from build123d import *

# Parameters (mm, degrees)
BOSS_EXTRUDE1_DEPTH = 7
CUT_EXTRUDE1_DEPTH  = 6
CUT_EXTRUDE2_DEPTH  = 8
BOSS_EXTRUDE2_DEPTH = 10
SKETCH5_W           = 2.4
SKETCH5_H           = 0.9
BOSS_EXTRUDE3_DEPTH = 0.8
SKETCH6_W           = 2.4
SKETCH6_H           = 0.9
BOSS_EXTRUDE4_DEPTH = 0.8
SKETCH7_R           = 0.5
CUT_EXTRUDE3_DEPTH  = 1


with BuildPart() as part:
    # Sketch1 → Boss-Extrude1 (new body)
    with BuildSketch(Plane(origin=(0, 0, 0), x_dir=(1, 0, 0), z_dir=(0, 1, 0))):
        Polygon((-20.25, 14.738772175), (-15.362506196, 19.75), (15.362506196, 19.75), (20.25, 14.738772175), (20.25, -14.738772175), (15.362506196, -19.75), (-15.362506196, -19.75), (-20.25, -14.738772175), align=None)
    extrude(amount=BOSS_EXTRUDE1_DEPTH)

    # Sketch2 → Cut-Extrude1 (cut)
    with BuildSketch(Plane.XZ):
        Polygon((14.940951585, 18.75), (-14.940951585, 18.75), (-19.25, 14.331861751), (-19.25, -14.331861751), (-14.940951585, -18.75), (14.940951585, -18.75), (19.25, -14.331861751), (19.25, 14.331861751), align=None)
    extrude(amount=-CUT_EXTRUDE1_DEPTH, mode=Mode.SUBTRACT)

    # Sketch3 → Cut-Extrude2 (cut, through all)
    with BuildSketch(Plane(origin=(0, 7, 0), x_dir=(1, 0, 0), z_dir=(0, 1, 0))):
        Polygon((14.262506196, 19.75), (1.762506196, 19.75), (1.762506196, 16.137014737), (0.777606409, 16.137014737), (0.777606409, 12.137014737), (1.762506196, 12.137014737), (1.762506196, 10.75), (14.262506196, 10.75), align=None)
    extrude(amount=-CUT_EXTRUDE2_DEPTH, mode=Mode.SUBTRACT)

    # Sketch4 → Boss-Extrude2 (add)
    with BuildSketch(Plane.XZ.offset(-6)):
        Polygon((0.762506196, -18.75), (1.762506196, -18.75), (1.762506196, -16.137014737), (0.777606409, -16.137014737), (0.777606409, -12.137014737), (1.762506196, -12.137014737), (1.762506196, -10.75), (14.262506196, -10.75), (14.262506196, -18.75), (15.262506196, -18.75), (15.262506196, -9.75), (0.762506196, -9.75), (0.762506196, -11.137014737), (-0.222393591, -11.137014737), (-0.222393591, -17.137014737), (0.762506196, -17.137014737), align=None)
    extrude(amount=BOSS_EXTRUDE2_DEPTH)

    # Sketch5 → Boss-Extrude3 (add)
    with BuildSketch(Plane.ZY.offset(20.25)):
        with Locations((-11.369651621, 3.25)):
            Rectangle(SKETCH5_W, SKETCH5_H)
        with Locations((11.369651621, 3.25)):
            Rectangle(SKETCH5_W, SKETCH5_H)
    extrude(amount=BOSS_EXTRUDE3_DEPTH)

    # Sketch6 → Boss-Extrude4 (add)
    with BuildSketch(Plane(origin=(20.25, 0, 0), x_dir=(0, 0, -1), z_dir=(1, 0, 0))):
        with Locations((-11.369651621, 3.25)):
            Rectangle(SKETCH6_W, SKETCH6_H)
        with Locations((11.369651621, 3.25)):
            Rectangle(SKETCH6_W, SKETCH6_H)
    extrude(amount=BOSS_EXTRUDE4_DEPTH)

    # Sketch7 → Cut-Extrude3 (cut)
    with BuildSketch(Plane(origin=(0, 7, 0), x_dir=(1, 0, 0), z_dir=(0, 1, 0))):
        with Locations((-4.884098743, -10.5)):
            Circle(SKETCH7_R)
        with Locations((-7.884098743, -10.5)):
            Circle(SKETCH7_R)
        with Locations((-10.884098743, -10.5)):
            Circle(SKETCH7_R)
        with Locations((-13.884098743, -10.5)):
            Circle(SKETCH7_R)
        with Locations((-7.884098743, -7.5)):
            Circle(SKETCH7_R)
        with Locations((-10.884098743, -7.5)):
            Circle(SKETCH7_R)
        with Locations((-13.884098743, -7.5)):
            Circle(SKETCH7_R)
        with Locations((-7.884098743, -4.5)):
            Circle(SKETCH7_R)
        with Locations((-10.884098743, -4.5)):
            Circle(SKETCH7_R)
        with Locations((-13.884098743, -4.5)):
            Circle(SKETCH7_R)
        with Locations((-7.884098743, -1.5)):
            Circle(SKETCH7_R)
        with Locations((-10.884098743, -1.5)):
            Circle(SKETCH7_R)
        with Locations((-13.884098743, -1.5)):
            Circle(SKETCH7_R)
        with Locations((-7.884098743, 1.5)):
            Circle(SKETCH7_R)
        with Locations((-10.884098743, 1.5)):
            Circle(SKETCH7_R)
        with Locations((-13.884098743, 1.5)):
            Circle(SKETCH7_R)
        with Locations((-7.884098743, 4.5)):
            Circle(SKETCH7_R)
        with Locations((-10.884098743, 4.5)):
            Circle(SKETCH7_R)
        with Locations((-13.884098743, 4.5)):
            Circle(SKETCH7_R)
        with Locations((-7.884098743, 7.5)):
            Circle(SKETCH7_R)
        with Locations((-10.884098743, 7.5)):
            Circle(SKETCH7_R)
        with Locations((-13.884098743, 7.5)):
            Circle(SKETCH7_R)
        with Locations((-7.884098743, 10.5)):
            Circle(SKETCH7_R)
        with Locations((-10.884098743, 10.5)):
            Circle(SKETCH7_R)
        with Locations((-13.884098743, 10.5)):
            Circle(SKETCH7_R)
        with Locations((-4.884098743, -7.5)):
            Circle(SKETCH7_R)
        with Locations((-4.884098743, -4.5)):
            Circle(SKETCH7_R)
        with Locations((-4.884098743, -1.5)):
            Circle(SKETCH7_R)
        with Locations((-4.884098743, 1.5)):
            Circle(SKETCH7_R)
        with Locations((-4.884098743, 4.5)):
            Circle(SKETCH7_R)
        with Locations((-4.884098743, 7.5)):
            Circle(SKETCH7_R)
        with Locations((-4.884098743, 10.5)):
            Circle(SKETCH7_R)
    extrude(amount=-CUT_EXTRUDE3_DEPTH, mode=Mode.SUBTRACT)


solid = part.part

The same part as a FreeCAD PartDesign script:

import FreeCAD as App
import Part
import Sketcher

V = App.Vector
Q = App.Units.Quantity

doc = App.newDocument("Part")
params = doc.addObject("Spreadsheet::Sheet", "Params")
for row, (alias, value) in enumerate([
    ("sketch1_length", "7 mm"),
    ("pad1_length", "7 mm"),
    ("pocket1_length", "6 mm"),
    ("sketch3_height", "4 mm"),
    ("sketch3_height2", "9 mm"),
    ("sketch3_width", "12.5 mm"),
    ("sketch4_width", "1 mm"),
    ("sketch4_height", "4 mm"),
    ("sketch4_height2", "8 mm"),
    ("sketch4_height3", "9 mm"),
    ("sketch4_height4", "6 mm"),
    ("pad2_length", "10 mm"),
    ("sketch5_width", "0.9 mm"),
    ("sketch5_height", "2.4 mm"),
    ("pad3_length", "0.8 mm"),
    ("sketch6_width", "0.9 mm"),
    ("sketch6_height", "2.4 mm"),
    ("pad4_length", "0.8 mm"),
    ("sketch7_diameter", "1 mm"),
    ("pocket3_length", "1 mm"),
], start=1):
    params.set(f"A{row}", alias)
    params.set(f"B{row}", "=" + value)
    params.setAlias(f"B{row}", alias)

body = doc.addObject("PartDesign::Body", "Body")

# Sketch on XZ plane
sketch1 = doc.addObject("Sketcher::SketchObject", "Sketch")
body.addObject(sketch1)
sketch1.AttachmentSupport = (doc.XZ_Plane, [""])
sketch1.MapMode = "FlatFace"
sketch1.addGeometry(Part.LineSegment(V(-15.362506, -19.75, 0), V(-20.25, -14.738772, 0)), False)
sketch1.addGeometry(Part.LineSegment(V(-20.25, -14.738772, 0), V(-20.25, 14.738772, 0)), False)
sketch1.addGeometry(Part.LineSegment(V(-20.25, 14.738772, 0), V(-15.362506, 19.75, 0)), False)
sketch1.addGeometry(Part.LineSegment(V(-15.362506, 19.75, 0), V(15.362506, 19.75, 0)), False)
sketch1.addGeometry(Part.LineSegment(V(15.362506, 19.75, 0), V(20.25, 14.738772, 0)), False)
sketch1.addGeometry(Part.LineSegment(V(20.25, 14.738772, 0), V(20.25, -14.738772, 0)), False)
sketch1.addGeometry(Part.LineSegment(V(20.25, -14.738772, 0), V(15.362506, -19.75, 0)), False)
sketch1.addGeometry(Part.LineSegment(V(15.362506, -19.75, 0), V(-15.362506, -19.75, 0)), False)
sketch1.addConstraint(Sketcher.Constraint("Coincident", 0, 2, 1, 1))
sketch1.addConstraint(Sketcher.Constraint("Coincident", 1, 2, 2, 1))
sketch1.addConstraint(Sketcher.Constraint("Coincident", 2, 2, 3, 1))
sketch1.addConstraint(Sketcher.Constraint("Coincident", 3, 2, 4, 1))
sketch1.addConstraint(Sketcher.Constraint("Coincident", 4, 2, 5, 1))
sketch1.addConstraint(Sketcher.Constraint("Coincident", 5, 2, 6, 1))
sketch1.addConstraint(Sketcher.Constraint("Coincident", 6, 2, 7, 1))
sketch1.addConstraint(Sketcher.Constraint("Coincident", 7, 2, 0, 1))
sketch1.addConstraint(Sketcher.Constraint("Vertical", 1))
sketch1.addConstraint(Sketcher.Constraint("Horizontal", 3))
sketch1.addConstraint(Sketcher.Constraint("Vertical", 5))
sketch1.addConstraint(Sketcher.Constraint("Horizontal", 7))
sketch1.addConstraint(Sketcher.Constraint("Symmetric", 0, 2, 4, 2, -1, 1))
sketch1.addConstraint(Sketcher.Constraint("Symmetric", 2, 2, 6, 2, -1, 1))
sketch1.addConstraint(Sketcher.Constraint("Parallel", 0, 4))
sketch1.addConstraint(Sketcher.Constraint("Parallel", 2, 6))
sketch1.addConstraint(Sketcher.Constraint("Horizontal", 1, 2, 4, 2))
sketch1.addConstraint(Sketcher.Constraint("Vertical", 3, 2, 6, 2))
sketch1.addConstraint(Sketcher.Constraint("Distance", 0, Q("7 mm")))
sketch1.addConstraint(Sketcher.Constraint("DistanceX", 1, 2, 4, 2, Q("40.5 mm")))
sketch1.addConstraint(Sketcher.Constraint("DistanceY", 6, 2, 3, 2, Q("39.5 mm")))
sketch1.addConstraint(Sketcher.Constraint("DistanceX", 3, 1, 3, 2, Q("30.725012 mm")))
sketch1.setExpression("Constraints[18]", "Params.sketch1_length")
pad1 = doc.addObject("PartDesign::Pad", "Pad")
body.addObject(pad1)
pad1.Profile = sketch1
pad1.setExpression("Length", "Params.pad1_length")
pad1.Reversed = True

# Sketch on XZ plane
sketch2 = doc.addObject("Sketcher::SketchObject", "Sketch001")
body.addObject(sketch2)
sketch2.AttachmentSupport = (doc.XZ_Plane, [""])
sketch2.MapMode = "FlatFace"
sketch2.addGeometry(Part.LineSegment(V(14.940952, 18.75, 0), V(-14.940952, 18.75, 0)), False)
sketch2.addGeometry(Part.LineSegment(V(-14.940952, 18.75, 0), V(-19.25, 14.331862, 0)), False)
sketch2.addGeometry(Part.LineSegment(V(-19.25, 14.331862, 0), V(-19.25, -14.331862, 0)), False)
sketch2.addGeometry(Part.LineSegment(V(-19.25, -14.331862, 0), V(-14.940952, -18.75, 0)), False)
sketch2.addGeometry(Part.LineSegment(V(-14.940952, -18.75, 0), V(14.940952, -18.75, 0)), False)
sketch2.addGeometry(Part.LineSegment(V(14.940952, -18.75, 0), V(19.25, -14.331862, 0)), False)
sketch2.addGeometry(Part.LineSegment(V(19.25, -14.331862, 0), V(19.25, 14.331862, 0)), False)
sketch2.addGeometry(Part.LineSegment(V(19.25, 14.331862, 0), V(14.940952, 18.75, 0)), False)
sketch2.addConstraint(Sketcher.Constraint("Coincident", 0, 2, 1, 1))
sketch2.addConstraint(Sketcher.Constraint("Coincident", 1, 2, 2, 1))
sketch2.addConstraint(Sketcher.Constraint("Coincident", 2, 2, 3, 1))
sketch2.addConstraint(Sketcher.Constraint("Coincident", 3, 2, 4, 1))
sketch2.addConstraint(Sketcher.Constraint("Coincident", 4, 2, 5, 1))
sketch2.addConstraint(Sketcher.Constraint("Coincident", 5, 2, 6, 1))
sketch2.addConstraint(Sketcher.Constraint("Coincident", 6, 2, 7, 1))
sketch2.addConstraint(Sketcher.Constraint("Coincident", 7, 2, 0, 1))
sketch2.addConstraint(Sketcher.Constraint("Horizontal", 0))
sketch2.addConstraint(Sketcher.Constraint("Vertical", 2))
sketch2.addConstraint(Sketcher.Constraint("Horizontal", 4))
sketch2.addConstraint(Sketcher.Constraint("Vertical", 6))
sketch2.addConstraint(Sketcher.Constraint("Symmetric", 0, 2, 4, 2, -1, 1))
sketch2.addConstraint(Sketcher.Constraint("Symmetric", 1, 2, 5, 2, -1, 1))
sketch2.addConstraint(Sketcher.Constraint("Parallel", 3, 7))
sketch2.addConstraint(Sketcher.Constraint("Horizontal", 2, 2, 5, 2))
sketch2.addConstraint(Sketcher.Constraint("Horizontal", 1, 2, 6, 2))
sketch2.addConstraint(Sketcher.Constraint("Vertical", 0, 2, 3, 2))
sketch2.addConstraint(Sketcher.Constraint("DistanceY", 3, 2, 0, 2, Q("37.5 mm")))
sketch2.addConstraint(Sketcher.Constraint("DistanceX", 2, 2, 5, 2, Q("38.5 mm")))
sketch2.addConstraint(Sketcher.Constraint("DistanceX", 0, 2, 0, 1, Q("29.881903 mm")))
sketch2.addConstraint(Sketcher.Constraint("DistanceY", 2, 2, 2, 1, Q("28.663724 mm")))
pocket1 = doc.addObject("PartDesign::Pocket", "Pocket")
body.addObject(pocket1)
pocket1.Profile = sketch2
pocket1.setExpression("Length", "Params.pocket1_length")

# Sketch on XZ plane
sketch3 = doc.addObject("Sketcher::SketchObject", "Sketch002")
body.addObject(sketch3)
sketch3.AttachmentSupport = (doc.XZ_Plane, [""])
sketch3.MapMode = "FlatFace"
sketch3.AttachmentOffset = App.Placement(V(0, 0, -7), App.Rotation())
sketch3.addGeometry(Part.LineSegment(V(14.262506, -19.75, 0), V(1.762506, -19.75, 0)), False)
sketch3.addGeometry(Part.LineSegment(V(1.762506, -19.75, 0), V(1.762506, -16.137015, 0)), False)
sketch3.addGeometry(Part.LineSegment(V(1.762506, -16.137015, 0), V(0.777606, -16.137015, 0)), False)
sketch3.addGeometry(Part.LineSegment(V(0.777606, -16.137015, 0), V(0.777606, -12.137015, 0)), False)
sketch3.addGeometry(Part.LineSegment(V(0.777606, -12.137015, 0), V(1.762506, -12.137015, 0)), False)
sketch3.addGeometry(Part.LineSegment(V(1.762506, -12.137015, 0), V(1.762506, -10.75, 0)), False)
sketch3.addGeometry(Part.LineSegment(V(1.762506, -10.75, 0), V(14.262506, -10.75, 0)), False)
sketch3.addGeometry(Part.LineSegment(V(14.262506, -10.75, 0), V(14.262506, -19.75, 0)), False)
sketch3.addConstraint(Sketcher.Constraint("Coincident", 0, 2, 1, 1))
sketch3.addConstraint(Sketcher.Constraint("Coincident", 1, 2, 2, 1))
sketch3.addConstraint(Sketcher.Constraint("Coincident", 2, 2, 3, 1))
sketch3.addConstraint(Sketcher.Constraint("Coincident", 3, 2, 4, 1))
sketch3.addConstraint(Sketcher.Constraint("Coincident", 4, 2, 5, 1))
sketch3.addConstraint(Sketcher.Constraint("Coincident", 5, 2, 6, 1))
sketch3.addConstraint(Sketcher.Constraint("Coincident", 6, 2, 7, 1))
sketch3.addConstraint(Sketcher.Constraint("Coincident", 7, 2, 0, 1))
sketch3.addConstraint(Sketcher.Constraint("Horizontal", 0))
sketch3.addConstraint(Sketcher.Constraint("Vertical", 1))
sketch3.addConstraint(Sketcher.Constraint("Horizontal", 2))
sketch3.addConstraint(Sketcher.Constraint("Vertical", 3))
sketch3.addConstraint(Sketcher.Constraint("Horizontal", 4))
sketch3.addConstraint(Sketcher.Constraint("Vertical", 5))
sketch3.addConstraint(Sketcher.Constraint("Horizontal", 6))
sketch3.addConstraint(Sketcher.Constraint("Vertical", 7))
sketch3.addConstraint(Sketcher.Constraint("Vertical", 1, 2, 4, 2))
sketch3.addConstraint(Sketcher.Constraint("DistanceY", 3, 1, 3, 2, Q("4 mm")))
sketch3.addConstraint(Sketcher.Constraint("DistanceY", 7, 2, 7, 1, Q("9 mm")))
sketch3.addConstraint(Sketcher.Constraint("DistanceX", 0, 2, 0, 1, Q("12.5 mm")))
sketch3.addConstraint(Sketcher.Constraint("DistanceY", 0, 2, -1, 1, Q("19.75 mm")))
sketch3.addConstraint(Sketcher.Constraint("DistanceX", 2, 2, 2, 1, Q("0.9849 mm")))
sketch3.addConstraint(Sketcher.Constraint("DistanceY", 1, 1, 1, 2, Q("3.612985 mm")))
sketch3.addConstraint(Sketcher.Constraint("DistanceX", -1, 1, 0, 2, Q("1.762506 mm")))
sketch3.setExpression("Constraints[17]", "Params.sketch3_height")
sketch3.setExpression("Constraints[18]", "Params.sketch3_height2")
sketch3.setExpression("Constraints[19]", "Params.sketch3_width")
pocket2 = doc.addObject("PartDesign::Pocket", "Pocket001")
body.addObject(pocket2)
pocket2.Profile = sketch3
pocket2.Type = "ThroughAll"
pocket2.Reversed = True

# Sketch on XZ plane
sketch4 = doc.addObject("Sketcher::SketchObject", "Sketch003")
body.addObject(sketch4)
sketch4.AttachmentSupport = (doc.XZ_Plane, [""])
sketch4.MapMode = "FlatFace"
sketch4.AttachmentOffset = App.Placement(V(0, 0, -6), App.Rotation())
sketch4.addGeometry(Part.LineSegment(V(0.762506, -18.75, 0), V(1.762506, -18.75, 0)), False)
sketch4.addGeometry(Part.LineSegment(V(1.762506, -18.75, 0), V(1.762506, -16.137015, 0)), False)
sketch4.addGeometry(Part.LineSegment(V(1.762506, -16.137015, 0), V(0.777606, -16.137015, 0)), False)
sketch4.addGeometry(Part.LineSegment(V(0.777606, -16.137015, 0), V(0.777606, -12.137015, 0)), False)
sketch4.addGeometry(Part.LineSegment(V(0.777606, -12.137015, 0), V(1.762506, -12.137015, 0)), False)
sketch4.addGeometry(Part.LineSegment(V(1.762506, -12.137015, 0), V(1.762506, -10.75, 0)), False)
sketch4.addGeometry(Part.LineSegment(V(1.762506, -10.75, 0), V(14.262506, -10.75, 0)), False)
sketch4.addGeometry(Part.LineSegment(V(14.262506, -10.75, 0), V(14.262506, -18.75, 0)), False)
sketch4.addGeometry(Part.LineSegment(V(14.262506, -18.75, 0), V(15.262506, -18.75, 0)), False)
sketch4.addGeometry(Part.LineSegment(V(15.262506, -18.75, 0), V(15.262506, -9.75, 0)), False)
sketch4.addGeometry(Part.LineSegment(V(15.262506, -9.75, 0), V(0.762506, -9.75, 0)), False)
sketch4.addGeometry(Part.LineSegment(V(0.762506, -9.75, 0), V(0.762506, -11.137015, 0)), False)
sketch4.addGeometry(Part.LineSegment(V(0.762506, -11.137015, 0), V(-0.222394, -11.137015, 0)), False)
sketch4.addGeometry(Part.LineSegment(V(-0.222394, -11.137015, 0), V(-0.222394, -17.137015, 0)), False)
sketch4.addGeometry(Part.LineSegment(V(-0.222394, -17.137015, 0), V(0.762506, -17.137015, 0)), False)
sketch4.addGeometry(Part.LineSegment(V(0.762506, -17.137015, 0), V(0.762506, -18.75, 0)), False)
sketch4.addConstraint(Sketcher.Constraint("Coincident", 0, 2, 1, 1))
sketch4.addConstraint(Sketcher.Constraint("Coincident", 1, 2, 2, 1))
sketch4.addConstraint(Sketcher.Constraint("Coincident", 2, 2, 3, 1))
sketch4.addConstraint(Sketcher.Constraint("Coincident", 3, 2, 4, 1))
sketch4.addConstraint(Sketcher.Constraint("Coincident", 4, 2, 5, 1))
sketch4.addConstraint(Sketcher.Constraint("Coincident", 5, 2, 6, 1))
sketch4.addConstraint(Sketcher.Constraint("Coincident", 6, 2, 7, 1))
sketch4.addConstraint(Sketcher.Constraint("Coincident", 7, 2, 8, 1))
sketch4.addConstraint(Sketcher.Constraint("Coincident", 8, 2, 9, 1))
sketch4.addConstraint(Sketcher.Constraint("Coincident", 9, 2, 10, 1))
sketch4.addConstraint(Sketcher.Constraint("Coincident", 10, 2, 11, 1))
sketch4.addConstraint(Sketcher.Constraint("Coincident", 11, 2, 12, 1))
sketch4.addConstraint(Sketcher.Constraint("Coincident", 12, 2, 13, 1))
sketch4.addConstraint(Sketcher.Constraint("Coincident", 13, 2, 14, 1))
sketch4.addConstraint(Sketcher.Constraint("Coincident", 14, 2, 15, 1))
sketch4.addConstraint(Sketcher.Constraint("Coincident", 15, 2, 0, 1))
sketch4.addConstraint(Sketcher.Constraint("Horizontal", 0))
sketch4.addConstraint(Sketcher.Constraint("Vertical", 1))
sketch4.addConstraint(Sketcher.Constraint("Horizontal", 2))
sketch4.addConstraint(Sketcher.Constraint("Vertical", 3))
sketch4.addConstraint(Sketcher.Constraint("Horizontal", 4))
sketch4.addConstraint(Sketcher.Constraint("Vertical", 5))
sketch4.addConstraint(Sketcher.Constraint("Horizontal", 6))
sketch4.addConstraint(Sketcher.Constraint("Vertical", 7))
sketch4.addConstraint(Sketcher.Constraint("Horizontal", 8))
sketch4.addConstraint(Sketcher.Constraint("Vertical", 9))
sketch4.addConstraint(Sketcher.Constraint("Horizontal", 10))
sketch4.addConstraint(Sketcher.Constraint("Vertical", 11))
sketch4.addConstraint(Sketcher.Constraint("Horizontal", 12))
sketch4.addConstraint(Sketcher.Constraint("Vertical", 13))
sketch4.addConstraint(Sketcher.Constraint("Horizontal", 14))
sketch4.addConstraint(Sketcher.Constraint("Vertical", 15))
sketch4.addConstraint(Sketcher.Constraint("Horizontal", 0, 2, 7, 2))
sketch4.addConstraint(Sketcher.Constraint("Vertical", 1, 2, 4, 2))
sketch4.addConstraint(Sketcher.Constraint("Vertical", 11, 2, 14, 2))
sketch4.addConstraint(Sketcher.Constraint("Equal", 0, 8))
sketch4.addConstraint(Sketcher.Constraint("Equal", 4, 12))
sketch4.addConstraint(Sketcher.Constraint("Equal", 5, 11))
sketch4.addConstraint(Sketcher.Constraint("DistanceX", 0, 1, 0, 2, Q("1 mm")))
sketch4.addConstraint(Sketcher.Constraint("DistanceY", 3, 1, 3, 2, Q("4 mm")))
sketch4.addConstraint(Sketcher.Constraint("DistanceY", 7, 2, 7, 1, Q("8 mm")))
sketch4.addConstraint(Sketcher.Constraint("DistanceY", 9, 1, 9, 2, Q("9 mm")))
sketch4.addConstraint(Sketcher.Constraint("DistanceY", 13, 2, 13, 1, Q("6 mm")))
sketch4.addConstraint(Sketcher.Constraint("DistanceX", 6, 1, 6, 2, Q("12.5 mm")))
sketch4.addConstraint(Sketcher.Constraint("DistanceY", 0, 2, -1, 1, Q("18.75 mm")))
sketch4.addConstraint(Sketcher.Constraint("DistanceX", 2, 2, 2, 1, Q("0.9849 mm")))
sketch4.addConstraint(Sketcher.Constraint("DistanceY", 1, 1, 1, 2, Q("2.612985 mm")))
sketch4.addConstraint(Sketcher.Constraint("DistanceX", -1, 1, 0, 2, Q("1.762506 mm")))
sketch4.setExpression("Constraints[38]", "Params.sketch4_width")
sketch4.setExpression("Constraints[39]", "Params.sketch4_height")
sketch4.setExpression("Constraints[40]", "Params.sketch4_height2")
sketch4.setExpression("Constraints[41]", "Params.sketch4_height3")
sketch4.setExpression("Constraints[42]", "Params.sketch4_height4")
pad2 = doc.addObject("PartDesign::Pad", "Pad001")
body.addObject(pad2)
pad2.Profile = sketch4
pad2.setExpression("Length", "Params.pad2_length")

# Sketch on YZ plane
sketch5 = doc.addObject("Sketcher::SketchObject", "Sketch004")
body.addObject(sketch5)
sketch5.AttachmentSupport = (doc.YZ_Plane, [""])
sketch5.MapMode = "FlatFace"
sketch5.AttachmentOffset = App.Placement(V(0, 0, -20.25), App.Rotation())
sketch5.addGeometry(Part.LineSegment(V(3.7, -12.569652, 0), V(2.8, -12.569652, 0)), False)
sketch5.addGeometry(Part.LineSegment(V(2.8, -12.569652, 0), V(2.8, -10.169652, 0)), False)
sketch5.addGeometry(Part.LineSegment(V(2.8, -10.169652, 0), V(3.7, -10.169652, 0)), False)
sketch5.addGeometry(Part.LineSegment(V(3.7, -10.169652, 0), V(3.7, -12.569652, 0)), False)
sketch5.addGeometry(Part.LineSegment(V(3.7, 10.169652, 0), V(2.8, 10.169652, 0)), False)
sketch5.addGeometry(Part.LineSegment(V(2.8, 10.169652, 0), V(2.8, 12.569652, 0)), False)
sketch5.addGeometry(Part.LineSegment(V(2.8, 12.569652, 0), V(3.7, 12.569652, 0)), False)
sketch5.addGeometry(Part.LineSegment(V(3.7, 12.569652, 0), V(3.7, 10.169652, 0)), False)
sketch5.addConstraint(Sketcher.Constraint("Coincident", 0, 2, 1, 1))
sketch5.addConstraint(Sketcher.Constraint("Coincident", 1, 2, 2, 1))
sketch5.addConstraint(Sketcher.Constraint("Coincident", 2, 2, 3, 1))
sketch5.addConstraint(Sketcher.Constraint("Coincident", 3, 2, 0, 1))
sketch5.addConstraint(Sketcher.Constraint("Coincident", 4, 2, 5, 1))
sketch5.addConstraint(Sketcher.Constraint("Coincident", 5, 2, 6, 1))
sketch5.addConstraint(Sketcher.Constraint("Coincident", 6, 2, 7, 1))
sketch5.addConstraint(Sketcher.Constraint("Coincident", 7, 2, 4, 1))
sketch5.addConstraint(Sketcher.Constraint("Horizontal", 0))
sketch5.addConstraint(Sketcher.Constraint("Vertical", 1))
sketch5.addConstraint(Sketcher.Constraint("Horizontal", 2))
sketch5.addConstraint(Sketcher.Constraint("Vertical", 3))
sketch5.addConstraint(Sketcher.Constraint("Horizontal", 4))
sketch5.addConstraint(Sketcher.Constraint("Vertical", 5))
sketch5.addConstraint(Sketcher.Constraint("Horizontal", 6))
sketch5.addConstraint(Sketcher.Constraint("Vertical", 7))
sketch5.addConstraint(Sketcher.Constraint("Symmetric", 1, 2, 4, 2, -1))
sketch5.addConstraint(Sketcher.Constraint("Symmetric", 3, 2, 6, 2, -1))
sketch5.addConstraint(Sketcher.Constraint("DistanceX", 0, 2, 0, 1, Q("0.9 mm")))
sketch5.addConstraint(Sketcher.Constraint("DistanceY", 1, 1, 1, 2, Q("2.4 mm")))
sketch5.addConstraint(Sketcher.Constraint("DistanceX", -1, 1, 0, 2, Q("2.8 mm")))
sketch5.addConstraint(Sketcher.Constraint("DistanceY", 0, 2, -1, 1, Q("12.569652 mm")))
sketch5.setExpression("Constraints[18]", "Params.sketch5_width")
sketch5.setExpression("Constraints[19]", "Params.sketch5_height")
pad3 = doc.addObject("PartDesign::Pad", "Pad002")
body.addObject(pad3)
pad3.Profile = sketch5
pad3.setExpression("Length", "Params.pad3_length")
pad3.Reversed = True

# Sketch on YZ plane
sketch6 = doc.addObject("Sketcher::SketchObject", "Sketch005")
body.addObject(sketch6)
sketch6.AttachmentSupport = (doc.YZ_Plane, [""])
sketch6.MapMode = "FlatFace"
sketch6.AttachmentOffset = App.Placement(V(0, 0, 20.25), App.Rotation())
sketch6.addGeometry(Part.LineSegment(V(3.7, 12.569652, 0), V(2.8, 12.569652, 0)), False)
sketch6.addGeometry(Part.LineSegment(V(2.8, 12.569652, 0), V(2.8, 10.169652, 0)), False)
sketch6.addGeometry(Part.LineSegment(V(2.8, 10.169652, 0), V(3.7, 10.169652, 0)), False)
sketch6.addGeometry(Part.LineSegment(V(3.7, 10.169652, 0), V(3.7, 12.569652, 0)), False)
sketch6.addGeometry(Part.LineSegment(V(3.7, -10.169652, 0), V(2.8, -10.169652, 0)), False)
sketch6.addGeometry(Part.LineSegment(V(2.8, -10.169652, 0), V(2.8, -12.569652, 0)), False)
sketch6.addGeometry(Part.LineSegment(V(2.8, -12.569652, 0), V(3.7, -12.569652, 0)), False)
sketch6.addGeometry(Part.LineSegment(V(3.7, -12.569652, 0), V(3.7, -10.169652, 0)), False)
sketch6.addConstraint(Sketcher.Constraint("Coincident", 0, 2, 1, 1))
sketch6.addConstraint(Sketcher.Constraint("Coincident", 1, 2, 2, 1))
sketch6.addConstraint(Sketcher.Constraint("Coincident", 2, 2, 3, 1))
sketch6.addConstraint(Sketcher.Constraint("Coincident", 3, 2, 0, 1))
sketch6.addConstraint(Sketcher.Constraint("Coincident", 4, 2, 5, 1))
sketch6.addConstraint(Sketcher.Constraint("Coincident", 5, 2, 6, 1))
sketch6.addConstraint(Sketcher.Constraint("Coincident", 6, 2, 7, 1))
sketch6.addConstraint(Sketcher.Constraint("Coincident", 7, 2, 4, 1))
sketch6.addConstraint(Sketcher.Constraint("Horizontal", 0))
sketch6.addConstraint(Sketcher.Constraint("Vertical", 1))
sketch6.addConstraint(Sketcher.Constraint("Horizontal", 2))
sketch6.addConstraint(Sketcher.Constraint("Vertical", 3))
sketch6.addConstraint(Sketcher.Constraint("Horizontal", 4))
sketch6.addConstraint(Sketcher.Constraint("Vertical", 5))
sketch6.addConstraint(Sketcher.Constraint("Horizontal", 6))
sketch6.addConstraint(Sketcher.Constraint("Vertical", 7))
sketch6.addConstraint(Sketcher.Constraint("Symmetric", 1, 2, 4, 2, -1))
sketch6.addConstraint(Sketcher.Constraint("Symmetric", 3, 2, 6, 2, -1))
sketch6.addConstraint(Sketcher.Constraint("DistanceX", 0, 2, 0, 1, Q("0.9 mm")))
sketch6.addConstraint(Sketcher.Constraint("DistanceY", 1, 2, 1, 1, Q("2.4 mm")))
sketch6.addConstraint(Sketcher.Constraint("DistanceX", -1, 1, 0, 2, Q("2.8 mm")))
sketch6.addConstraint(Sketcher.Constraint("DistanceY", -1, 1, 0, 2, Q("12.569652 mm")))
sketch6.setExpression("Constraints[18]", "Params.sketch6_width")
sketch6.setExpression("Constraints[19]", "Params.sketch6_height")
pad4 = doc.addObject("PartDesign::Pad", "Pad003")
body.addObject(pad4)
pad4.Profile = sketch6
pad4.setExpression("Length", "Params.pad4_length")

# Sketch on XZ plane
sketch7 = doc.addObject("Sketcher::SketchObject", "Sketch006")
body.addObject(sketch7)
sketch7.AttachmentSupport = (doc.XZ_Plane, [""])
sketch7.MapMode = "FlatFace"
sketch7.AttachmentOffset = App.Placement(V(0, 0, -7), App.Rotation())
sketch7.addGeometry(Part.Circle(V(-4.884099, 10.5, 0), V(0, 0, 1), 0.5), False)
sketch7.addGeometry(Part.Circle(V(-7.884099, 10.5, 0), V(0, 0, 1), 0.5), False)
sketch7.addGeometry(Part.Circle(V(-10.884099, 10.5, 0), V(0, 0, 1), 0.5), False)
sketch7.addGeometry(Part.Circle(V(-13.884099, 10.5, 0), V(0, 0, 1), 0.5), False)
sketch7.addGeometry(Part.Circle(V(-7.884099, 7.5, 0), V(0, 0, 1), 0.5), False)
sketch7.addGeometry(Part.Circle(V(-10.884099, 7.5, 0), V(0, 0, 1), 0.5), False)
sketch7.addGeometry(Part.Circle(V(-13.884099, 7.5, 0), V(0, 0, 1), 0.5), False)
sketch7.addGeometry(Part.Circle(V(-7.884099, 4.5, 0), V(0, 0, 1), 0.5), False)
sketch7.addGeometry(Part.Circle(V(-10.884099, 4.5, 0), V(0, 0, 1), 0.5), False)
sketch7.addGeometry(Part.Circle(V(-13.884099, 4.5, 0), V(0, 0, 1), 0.5), False)
sketch7.addGeometry(Part.Circle(V(-7.884099, 1.5, 0), V(0, 0, 1), 0.5), False)
sketch7.addGeometry(Part.Circle(V(-10.884099, 1.5, 0), V(0, 0, 1), 0.5), False)
sketch7.addGeometry(Part.Circle(V(-13.884099, 1.5, 0), V(0, 0, 1), 0.5), False)
sketch7.addGeometry(Part.Circle(V(-7.884099, -1.5, 0), V(0, 0, 1), 0.5), False)
sketch7.addGeometry(Part.Circle(V(-10.884099, -1.5, 0), V(0, 0, 1), 0.5), False)
sketch7.addGeometry(Part.Circle(V(-13.884099, -1.5, 0), V(0, 0, 1), 0.5), False)
sketch7.addGeometry(Part.Circle(V(-7.884099, -4.5, 0), V(0, 0, 1), 0.5), False)
sketch7.addGeometry(Part.Circle(V(-10.884099, -4.5, 0), V(0, 0, 1), 0.5), False)
sketch7.addGeometry(Part.Circle(V(-13.884099, -4.5, 0), V(0, 0, 1), 0.5), False)
sketch7.addGeometry(Part.Circle(V(-7.884099, -7.5, 0), V(0, 0, 1), 0.5), False)
sketch7.addGeometry(Part.Circle(V(-10.884099, -7.5, 0), V(0, 0, 1), 0.5), False)
sketch7.addGeometry(Part.Circle(V(-13.884099, -7.5, 0), V(0, 0, 1), 0.5), False)
sketch7.addGeometry(Part.Circle(V(-7.884099, -10.5, 0), V(0, 0, 1), 0.5), False)
sketch7.addGeometry(Part.Circle(V(-10.884099, -10.5, 0), V(0, 0, 1), 0.5), False)
sketch7.addGeometry(Part.Circle(V(-13.884099, -10.5, 0), V(0, 0, 1), 0.5), False)
sketch7.addGeometry(Part.Circle(V(-4.884099, 7.5, 0), V(0, 0, 1), 0.5), False)
sketch7.addGeometry(Part.Circle(V(-4.884099, 4.5, 0), V(0, 0, 1), 0.5), False)
sketch7.addGeometry(Part.Circle(V(-4.884099, 1.5, 0), V(0, 0, 1), 0.5), False)
sketch7.addGeometry(Part.Circle(V(-4.884099, -1.5, 0), V(0, 0, 1), 0.5), False)
sketch7.addGeometry(Part.Circle(V(-4.884099, -4.5, 0), V(0, 0, 1), 0.5), False)
sketch7.addGeometry(Part.Circle(V(-4.884099, -7.5, 0), V(0, 0, 1), 0.5), False)
sketch7.addGeometry(Part.Circle(V(-4.884099, -10.5, 0), V(0, 0, 1), 0.5), False)
sketch7.addConstraint(Sketcher.Constraint("Equal", 0, 1))
sketch7.addConstraint(Sketcher.Constraint("Equal", 1, 2))
sketch7.addConstraint(Sketcher.Constraint("Equal", 2, 3))
sketch7.addConstraint(Sketcher.Constraint("Equal", 3, 4))
sketch7.addConstraint(Sketcher.Constraint("Equal", 4, 5))
sketch7.addConstraint(Sketcher.Constraint("Equal", 5, 6))
sketch7.addConstraint(Sketcher.Constraint("Equal", 6, 7))
sketch7.addConstraint(Sketcher.Constraint("Equal", 7, 8))
sketch7.addConstraint(Sketcher.Constraint("Equal", 8, 9))
sketch7.addConstraint(Sketcher.Constraint("Equal", 9, 10))
sketch7.addConstraint(Sketcher.Constraint("Equal", 10, 11))
sketch7.addConstraint(Sketcher.Constraint("Equal", 11, 12))
sketch7.addConstraint(Sketcher.Constraint("Equal", 12, 13))
sketch7.addConstraint(Sketcher.Constraint("Equal", 13, 14))
sketch7.addConstraint(Sketcher.Constraint("Equal", 14, 15))
sketch7.addConstraint(Sketcher.Constraint("Equal", 15, 16))
sketch7.addConstraint(Sketcher.Constraint("Equal", 16, 17))
sketch7.addConstraint(Sketcher.Constraint("Equal", 17, 18))
sketch7.addConstraint(Sketcher.Constraint("Equal", 18, 19))
sketch7.addConstraint(Sketcher.Constraint("Equal", 19, 20))
sketch7.addConstraint(Sketcher.Constraint("Equal", 20, 21))
sketch7.addConstraint(Sketcher.Constraint("Equal", 21, 22))
sketch7.addConstraint(Sketcher.Constraint("Equal", 22, 23))
sketch7.addConstraint(Sketcher.Constraint("Equal", 23, 24))
sketch7.addConstraint(Sketcher.Constraint("Equal", 24, 25))
sketch7.addConstraint(Sketcher.Constraint("Equal", 25, 26))
sketch7.addConstraint(Sketcher.Constraint("Equal", 26, 27))
sketch7.addConstraint(Sketcher.Constraint("Equal", 27, 28))
sketch7.addConstraint(Sketcher.Constraint("Equal", 28, 29))
sketch7.addConstraint(Sketcher.Constraint("Equal", 29, 30))
sketch7.addConstraint(Sketcher.Constraint("Equal", 30, 31))
sketch7.addConstraint(Sketcher.Constraint("Symmetric", 10, 3, 13, 3, -1))
sketch7.addConstraint(Sketcher.Constraint("Symmetric", 11, 3, 14, 3, -1))
sketch7.addConstraint(Sketcher.Constraint("Symmetric", 12, 3, 15, 3, -1))
sketch7.addConstraint(Sketcher.Constraint("Symmetric", 7, 3, 16, 3, -1))
sketch7.addConstraint(Sketcher.Constraint("Symmetric", 8, 3, 17, 3, -1))
sketch7.addConstraint(Sketcher.Constraint("Symmetric", 9, 3, 18, 3, -1))
sketch7.addConstraint(Sketcher.Constraint("Symmetric", 4, 3, 19, 3, -1))
sketch7.addConstraint(Sketcher.Constraint("Symmetric", 5, 3, 20, 3, -1))
sketch7.addConstraint(Sketcher.Constraint("Symmetric", 6, 3, 21, 3, -1))
sketch7.addConstraint(Sketcher.Constraint("Symmetric", 1, 3, 22, 3, -1))
sketch7.addConstraint(Sketcher.Constraint("Symmetric", 2, 3, 23, 3, -1))
sketch7.addConstraint(Sketcher.Constraint("Symmetric", 3, 3, 24, 3, -1))
sketch7.addConstraint(Sketcher.Constraint("Symmetric", 27, 3, 28, 3, -1))
sketch7.addConstraint(Sketcher.Constraint("Symmetric", 26, 3, 29, 3, -1))
sketch7.addConstraint(Sketcher.Constraint("Symmetric", 25, 3, 30, 3, -1))
sketch7.addConstraint(Sketcher.Constraint("Symmetric", 0, 3, 31, 3, -1))
sketch7.addConstraint(Sketcher.Constraint("Horizontal", 0, 3, 1, 3))
sketch7.addConstraint(Sketcher.Constraint("Horizontal", 1, 3, 2, 3))
sketch7.addConstraint(Sketcher.Constraint("Horizontal", 2, 3, 3, 3))
sketch7.addConstraint(Sketcher.Constraint("Horizontal", 4, 3, 5, 3))
sketch7.addConstraint(Sketcher.Constraint("Horizontal", 5, 3, 6, 3))
sketch7.addConstraint(Sketcher.Constraint("Horizontal", 7, 3, 8, 3))
sketch7.addConstraint(Sketcher.Constraint("Horizontal", 8, 3, 9, 3))
sketch7.addConstraint(Sketcher.Constraint("Horizontal", 10, 3, 11, 3))
sketch7.addConstraint(Sketcher.Constraint("Horizontal", 11, 3, 12, 3))
sketch7.addConstraint(Sketcher.Constraint("Horizontal", 6, 3, 25, 3))
sketch7.addConstraint(Sketcher.Constraint("Horizontal", 9, 3, 26, 3))
sketch7.addConstraint(Sketcher.Constraint("Horizontal", 12, 3, 27, 3))
sketch7.addConstraint(Sketcher.Constraint("Vertical", 1, 3, 4, 3))
sketch7.addConstraint(Sketcher.Constraint("Vertical", 2, 3, 5, 3))
sketch7.addConstraint(Sketcher.Constraint("Vertical", 3, 3, 6, 3))
sketch7.addConstraint(Sketcher.Constraint("Vertical", 4, 3, 7, 3))
sketch7.addConstraint(Sketcher.Constraint("Vertical", 5, 3, 8, 3))
sketch7.addConstraint(Sketcher.Constraint("Vertical", 6, 3, 9, 3))
sketch7.addConstraint(Sketcher.Constraint("Vertical", 7, 3, 10, 3))
sketch7.addConstraint(Sketcher.Constraint("Vertical", 8, 3, 11, 3))
sketch7.addConstraint(Sketcher.Constraint("Vertical", 9, 3, 12, 3))
sketch7.addConstraint(Sketcher.Constraint("Vertical", 0, 3, 25, 3))
sketch7.addConstraint(Sketcher.Constraint("Vertical", 25, 3, 26, 3))
sketch7.addConstraint(Sketcher.Constraint("Vertical", 26, 3, 27, 3))
sketch7.addConstraint(Sketcher.Constraint("Diameter", 0, Q("1 mm")))
sketch7.addConstraint(Sketcher.Constraint("DistanceX", 1, 3, 0, 3, Q("3 mm")))
sketch7.addConstraint(Sketcher.Constraint("DistanceX", 2, 3, 1, 3, Q("3 mm")))
sketch7.addConstraint(Sketcher.Constraint("DistanceX", 3, 3, 2, 3, Q("3 mm")))
sketch7.addConstraint(Sketcher.Constraint("DistanceY", 4, 3, 1, 3, Q("3 mm")))
sketch7.addConstraint(Sketcher.Constraint("DistanceY", 7, 3, 4, 3, Q("3 mm")))
sketch7.addConstraint(Sketcher.Constraint("DistanceY", 10, 3, 7, 3, Q("3 mm")))
sketch7.addConstraint(Sketcher.Constraint("DistanceY", 13, 3, 10, 3, Q("3 mm")))
sketch7.addConstraint(Sketcher.Constraint("DistanceX", 0, 3, -1, 1, Q("4.884099 mm")))
sketch7.setExpression("Constraints[71]", "Params.sketch7_diameter")
pocket3 = doc.addObject("PartDesign::Pocket", "Pocket002")
body.addObject(pocket3)
pocket3.Profile = sketch7
pocket3.setExpression("Length", "Params.pocket3_length")
pocket3.Reversed = True

doc.recompute()
